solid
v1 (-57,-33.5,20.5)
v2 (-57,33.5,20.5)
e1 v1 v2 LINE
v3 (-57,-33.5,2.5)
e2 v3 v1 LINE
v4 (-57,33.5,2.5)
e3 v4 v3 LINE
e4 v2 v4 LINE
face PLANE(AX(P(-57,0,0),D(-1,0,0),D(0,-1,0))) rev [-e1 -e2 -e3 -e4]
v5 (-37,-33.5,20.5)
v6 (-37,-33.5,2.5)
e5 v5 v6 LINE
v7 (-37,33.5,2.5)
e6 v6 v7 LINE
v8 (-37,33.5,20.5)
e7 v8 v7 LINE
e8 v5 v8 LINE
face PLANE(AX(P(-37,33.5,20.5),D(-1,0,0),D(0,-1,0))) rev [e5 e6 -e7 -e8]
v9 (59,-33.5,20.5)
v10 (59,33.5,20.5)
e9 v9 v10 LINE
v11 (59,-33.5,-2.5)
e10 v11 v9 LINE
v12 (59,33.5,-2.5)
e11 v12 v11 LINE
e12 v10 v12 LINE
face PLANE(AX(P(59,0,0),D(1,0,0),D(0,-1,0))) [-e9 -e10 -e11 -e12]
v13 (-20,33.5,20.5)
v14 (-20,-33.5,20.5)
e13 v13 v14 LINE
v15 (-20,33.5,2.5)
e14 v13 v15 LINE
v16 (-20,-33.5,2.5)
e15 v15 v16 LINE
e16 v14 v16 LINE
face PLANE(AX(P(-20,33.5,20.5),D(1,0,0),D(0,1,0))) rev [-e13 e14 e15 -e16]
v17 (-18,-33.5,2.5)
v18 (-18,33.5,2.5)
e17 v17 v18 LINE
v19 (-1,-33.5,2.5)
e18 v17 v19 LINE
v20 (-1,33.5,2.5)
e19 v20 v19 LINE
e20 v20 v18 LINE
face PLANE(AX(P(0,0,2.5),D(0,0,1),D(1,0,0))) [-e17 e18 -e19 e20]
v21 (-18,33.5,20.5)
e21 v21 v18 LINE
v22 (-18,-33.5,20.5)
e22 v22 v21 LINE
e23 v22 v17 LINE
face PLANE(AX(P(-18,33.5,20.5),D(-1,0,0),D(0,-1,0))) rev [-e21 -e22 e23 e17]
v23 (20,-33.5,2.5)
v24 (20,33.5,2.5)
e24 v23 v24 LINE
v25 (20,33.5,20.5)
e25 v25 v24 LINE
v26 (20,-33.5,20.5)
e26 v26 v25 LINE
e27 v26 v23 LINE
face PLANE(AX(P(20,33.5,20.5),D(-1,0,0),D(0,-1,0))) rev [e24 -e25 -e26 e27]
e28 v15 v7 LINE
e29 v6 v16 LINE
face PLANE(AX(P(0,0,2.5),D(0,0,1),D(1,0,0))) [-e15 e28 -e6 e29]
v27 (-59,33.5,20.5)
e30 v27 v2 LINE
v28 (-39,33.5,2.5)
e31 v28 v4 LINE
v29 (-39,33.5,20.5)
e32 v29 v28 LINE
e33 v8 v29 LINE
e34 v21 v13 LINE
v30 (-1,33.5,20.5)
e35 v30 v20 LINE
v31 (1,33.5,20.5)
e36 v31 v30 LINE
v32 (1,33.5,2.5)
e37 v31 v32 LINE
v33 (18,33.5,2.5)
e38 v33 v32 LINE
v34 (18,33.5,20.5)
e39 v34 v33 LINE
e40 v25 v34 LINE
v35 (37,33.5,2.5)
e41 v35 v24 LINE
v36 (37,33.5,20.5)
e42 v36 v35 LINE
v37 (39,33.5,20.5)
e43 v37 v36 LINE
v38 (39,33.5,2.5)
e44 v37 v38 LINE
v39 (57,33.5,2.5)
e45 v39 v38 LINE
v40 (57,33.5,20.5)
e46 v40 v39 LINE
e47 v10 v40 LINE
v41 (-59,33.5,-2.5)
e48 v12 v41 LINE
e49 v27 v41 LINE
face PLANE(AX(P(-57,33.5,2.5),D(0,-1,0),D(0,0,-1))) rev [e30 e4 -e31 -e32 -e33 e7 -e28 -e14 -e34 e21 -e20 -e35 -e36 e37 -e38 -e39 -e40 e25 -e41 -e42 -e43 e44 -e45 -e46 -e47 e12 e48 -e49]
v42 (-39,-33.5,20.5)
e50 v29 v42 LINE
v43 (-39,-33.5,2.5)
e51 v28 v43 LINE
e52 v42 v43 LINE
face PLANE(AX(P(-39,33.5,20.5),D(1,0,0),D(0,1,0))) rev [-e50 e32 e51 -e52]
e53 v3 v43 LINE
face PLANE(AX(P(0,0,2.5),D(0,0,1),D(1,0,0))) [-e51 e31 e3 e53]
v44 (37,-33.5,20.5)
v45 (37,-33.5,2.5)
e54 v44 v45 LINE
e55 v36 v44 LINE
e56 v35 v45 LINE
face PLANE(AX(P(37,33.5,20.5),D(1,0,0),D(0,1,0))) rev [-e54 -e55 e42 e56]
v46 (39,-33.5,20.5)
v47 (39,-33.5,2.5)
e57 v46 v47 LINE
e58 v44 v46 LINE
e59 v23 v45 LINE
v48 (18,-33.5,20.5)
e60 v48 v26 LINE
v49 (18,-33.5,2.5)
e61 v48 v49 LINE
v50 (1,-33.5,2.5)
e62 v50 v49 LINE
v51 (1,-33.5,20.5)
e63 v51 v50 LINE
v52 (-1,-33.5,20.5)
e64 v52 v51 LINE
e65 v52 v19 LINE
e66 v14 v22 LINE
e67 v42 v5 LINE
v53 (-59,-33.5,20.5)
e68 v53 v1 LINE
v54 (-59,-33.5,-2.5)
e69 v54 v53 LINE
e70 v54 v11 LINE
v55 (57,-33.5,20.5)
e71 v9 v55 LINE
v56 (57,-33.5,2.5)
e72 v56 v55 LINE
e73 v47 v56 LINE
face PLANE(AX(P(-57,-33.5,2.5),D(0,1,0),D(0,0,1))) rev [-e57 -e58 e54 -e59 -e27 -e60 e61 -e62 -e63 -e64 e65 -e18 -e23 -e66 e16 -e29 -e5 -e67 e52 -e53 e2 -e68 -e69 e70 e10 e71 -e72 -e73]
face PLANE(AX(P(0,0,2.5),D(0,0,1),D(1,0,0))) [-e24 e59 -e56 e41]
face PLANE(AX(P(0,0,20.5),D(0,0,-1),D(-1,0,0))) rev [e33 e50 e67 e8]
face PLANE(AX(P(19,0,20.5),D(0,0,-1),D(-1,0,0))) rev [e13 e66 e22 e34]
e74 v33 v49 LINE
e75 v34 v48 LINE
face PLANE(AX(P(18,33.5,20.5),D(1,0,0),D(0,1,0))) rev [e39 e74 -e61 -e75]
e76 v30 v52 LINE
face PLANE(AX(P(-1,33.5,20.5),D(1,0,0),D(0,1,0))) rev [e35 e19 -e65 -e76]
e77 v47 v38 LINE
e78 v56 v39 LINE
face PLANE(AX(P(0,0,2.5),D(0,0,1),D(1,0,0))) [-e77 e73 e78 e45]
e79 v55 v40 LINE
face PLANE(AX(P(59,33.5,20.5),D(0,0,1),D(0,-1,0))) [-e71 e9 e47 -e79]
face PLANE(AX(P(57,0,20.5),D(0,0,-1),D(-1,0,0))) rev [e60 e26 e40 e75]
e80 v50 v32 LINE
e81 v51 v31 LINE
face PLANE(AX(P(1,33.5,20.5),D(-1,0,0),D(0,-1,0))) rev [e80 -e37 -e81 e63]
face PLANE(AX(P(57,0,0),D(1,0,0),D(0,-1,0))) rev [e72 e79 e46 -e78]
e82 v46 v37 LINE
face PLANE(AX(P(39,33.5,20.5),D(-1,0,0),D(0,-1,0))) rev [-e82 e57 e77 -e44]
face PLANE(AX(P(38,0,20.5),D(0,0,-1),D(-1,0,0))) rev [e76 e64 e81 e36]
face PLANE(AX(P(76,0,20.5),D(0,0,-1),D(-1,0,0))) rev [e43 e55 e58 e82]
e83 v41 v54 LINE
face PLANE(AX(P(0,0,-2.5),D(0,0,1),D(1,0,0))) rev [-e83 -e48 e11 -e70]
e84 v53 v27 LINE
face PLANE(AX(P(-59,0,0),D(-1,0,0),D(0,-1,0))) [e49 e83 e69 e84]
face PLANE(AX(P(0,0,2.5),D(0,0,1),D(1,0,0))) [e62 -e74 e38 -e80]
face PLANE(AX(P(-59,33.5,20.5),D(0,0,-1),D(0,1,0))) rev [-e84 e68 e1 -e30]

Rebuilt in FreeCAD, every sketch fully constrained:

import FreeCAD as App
import Part
import Sketcher
Q = App.Units.Quantity

doc = App.newDocument("Part")
body = doc.addObject("PartDesign::Body", "Body")

sketch1 = doc.addObject("Sketcher::SketchObject", "Sketch")
body.addObject(sketch1)
sketch1.AttachmentSupport = (doc.XY_Plane, [""])
sketch1.MapMode = "FlatFace"
sketch1.addGeometry([
    Part.LineSegment(App.Vector(-57, 34, 0), App.Vector(-57, -34, 0)),
    Part.LineSegment(App.Vector(-57, -34, 0), App.Vector(57, -34, 0)),
    Part.LineSegment(App.Vector(57, -34, 0), App.Vector(57, 34, 0)),
    Part.LineSegment(App.Vector(57, 34, 0), App.Vector(-57, 34, 0)),
], False)
sketch1.addConstraint([
    Sketcher.Constraint("Coincident", 0, 2, 1, 1),
    Sketcher.Constraint("Coincident", 1, 2, 2, 1),
    Sketcher.Constraint("Coincident", 2, 2, 3, 1),
    Sketcher.Constraint("Coincident", 3, 2, 0, 1),
    Sketcher.Constraint("Vertical", 0),
    Sketcher.Constraint("Horizontal", 1),
    Sketcher.Constraint("Vertical", 2),
    Sketcher.Constraint("Horizontal", 3),
    Sketcher.Constraint("Symmetric", 0, 2, 2, 2, -1, 1),
    Sketcher.Constraint("DistanceX", 1, 1, 1, 2, Q("114 mm")),
    Sketcher.Constraint("DistanceY", 0, 2, 0, 1, Q("67 mm")),
])
pad1 = doc.addObject("PartDesign::Pad", "Pad")
body.addObject(pad1)
pad1.Profile = sketch1
pad1.Length = 5
pad1.Midplane = True

sketch2 = doc.addObject("Sketcher::SketchObject", "Sketch001")
body.addObject(sketch2)
sketch2.AttachmentSupport = (doc.XY_Plane, [""])
sketch2.MapMode = "FlatFace"
sketch2.AttachmentOffset = App.Placement(App.Vector(0, 0, 2.5), App.Rotation())
sketch2.addGeometry([
    Part.LineSegment(App.Vector(-39, 33.5, 0), App.Vector(-39, -33.5, 0)),
    Part.LineSegment(App.Vector(-39, -33.5, 0), App.Vector(-37, -33.5, 0)),
    Part.LineSegment(App.Vector(-37, -33.5, 0), App.Vector(-37, 33.5, 0)),
    Part.LineSegment(App.Vector(-37, 33.5, 0), App.Vector(-39, 33.5, 0)),
], False)
sketch2.addConstraint([
    Sketcher.Constraint("Coincident", 0, 2, 1, 1),
    Sketcher.Constraint("Coincident", 1, 2, 2, 1),
    Sketcher.Constraint("Coincident", 2, 2, 3, 1),
    Sketcher.Constraint("Coincident", 3, 2, 0, 1),
    Sketcher.Constraint("Vertical", 0),
    Sketcher.Constraint("Horizontal", 1),
    Sketcher.Constraint("Vertical", 2),
    Sketcher.Constraint("Horizontal", 3),
    Sketcher.Constraint("DistanceX", 1, 1, 1, 2, Q("2 mm")),
    Sketcher.Constraint("DistanceY", 0, 2, 0, 1, Q("67 mm")),
    Sketcher.Constraint("DistanceX", 0, 2, -1, 1, Q("39 mm")),
    Sketcher.Constraint("DistanceY", 0, 2, -1, 1, Q("33.5 mm")),
])
pad2 = doc.addObject("PartDesign::Pad", "Pad001")
body.addObject(pad2)
pad2.Profile = sketch2
pad2.Length = 18
doc.recompute()

linearpattern = doc.addObject("PartDesign::LinearPattern", "LinearPattern")
body.addObject(linearpattern)
linearpattern.Originals = [pad2]
linearpattern.Direction = (doc.X_Axis, [""])
linearpattern.Mode = "offset"
linearpattern.Offset = 19
linearpattern.Occurrences = 5
body.Tip = linearpattern

sketch3 = doc.addObject("Sketcher::SketchObject", "Sketch002")
body.addObject(sketch3)
sketch3.AttachmentSupport = (doc.YZ_Plane, [""])
sketch3.MapMode = "FlatFace"
sketch3.AttachmentOffset = App.Placement(App.Vector(0, 0, -57), App.Rotation())
sketch3.addGeometry([
    Part.LineSegment(App.Vector(34, -2, 0), App.Vector(-34, -2, 0)),
    Part.LineSegment(App.Vector(-34, -2, 0), App.Vector(-34, 20, 0)),
    Part.LineSegment(App.Vector(-34, 20, 0), App.Vector(34, 20, 0)),
    Part.LineSegment(App.Vector(34, 20, 0), App.Vector(34, -2, 0)),
], False)
sketch3.addConstraint([
    Sketcher.Constraint("Coincident", 0, 2, 1, 1),
    Sketcher.Constraint("Coincident", 1, 2, 2, 1),
    Sketcher.Constraint("Coincident", 2, 2, 3, 1),
    Sketcher.Constraint("Coincident", 3, 2, 0, 1),
    Sketcher.Constraint("Horizontal", 0),
    Sketcher.Constraint("Vertical", 1),
    Sketcher.Constraint("Horizontal", 2),
    Sketcher.Constraint("Vertical", 3),
    Sketcher.Constraint("DistanceX", 0, 2, 0, 1, Q("67 mm")),
    Sketcher.Constraint("DistanceY", 1, 1, 1, 2, Q("23 mm")),
    Sketcher.Constraint("DistanceX", 0, 2, -1, 1, Q("33.5 mm")),
    Sketcher.Constraint("DistanceY", 0, 2, -1, 1, Q("2.5 mm")),
])
pad3 = doc.addObject("PartDesign::Pad", "Pad002")
body.addObject(pad3)
pad3.Profile = sketch3
pad3.Length = 2
pad3.Reversed = True
doc.recompute()

mirrored = doc.addObject("PartDesign::Mirrored", "Mirrored")
body.addObject(mirrored)
mirrored.Originals = [pad3]
mirrored.MirrorPlane = (doc.YZ_Plane, [""])
body.Tip = mirrored

doc.recompute()
